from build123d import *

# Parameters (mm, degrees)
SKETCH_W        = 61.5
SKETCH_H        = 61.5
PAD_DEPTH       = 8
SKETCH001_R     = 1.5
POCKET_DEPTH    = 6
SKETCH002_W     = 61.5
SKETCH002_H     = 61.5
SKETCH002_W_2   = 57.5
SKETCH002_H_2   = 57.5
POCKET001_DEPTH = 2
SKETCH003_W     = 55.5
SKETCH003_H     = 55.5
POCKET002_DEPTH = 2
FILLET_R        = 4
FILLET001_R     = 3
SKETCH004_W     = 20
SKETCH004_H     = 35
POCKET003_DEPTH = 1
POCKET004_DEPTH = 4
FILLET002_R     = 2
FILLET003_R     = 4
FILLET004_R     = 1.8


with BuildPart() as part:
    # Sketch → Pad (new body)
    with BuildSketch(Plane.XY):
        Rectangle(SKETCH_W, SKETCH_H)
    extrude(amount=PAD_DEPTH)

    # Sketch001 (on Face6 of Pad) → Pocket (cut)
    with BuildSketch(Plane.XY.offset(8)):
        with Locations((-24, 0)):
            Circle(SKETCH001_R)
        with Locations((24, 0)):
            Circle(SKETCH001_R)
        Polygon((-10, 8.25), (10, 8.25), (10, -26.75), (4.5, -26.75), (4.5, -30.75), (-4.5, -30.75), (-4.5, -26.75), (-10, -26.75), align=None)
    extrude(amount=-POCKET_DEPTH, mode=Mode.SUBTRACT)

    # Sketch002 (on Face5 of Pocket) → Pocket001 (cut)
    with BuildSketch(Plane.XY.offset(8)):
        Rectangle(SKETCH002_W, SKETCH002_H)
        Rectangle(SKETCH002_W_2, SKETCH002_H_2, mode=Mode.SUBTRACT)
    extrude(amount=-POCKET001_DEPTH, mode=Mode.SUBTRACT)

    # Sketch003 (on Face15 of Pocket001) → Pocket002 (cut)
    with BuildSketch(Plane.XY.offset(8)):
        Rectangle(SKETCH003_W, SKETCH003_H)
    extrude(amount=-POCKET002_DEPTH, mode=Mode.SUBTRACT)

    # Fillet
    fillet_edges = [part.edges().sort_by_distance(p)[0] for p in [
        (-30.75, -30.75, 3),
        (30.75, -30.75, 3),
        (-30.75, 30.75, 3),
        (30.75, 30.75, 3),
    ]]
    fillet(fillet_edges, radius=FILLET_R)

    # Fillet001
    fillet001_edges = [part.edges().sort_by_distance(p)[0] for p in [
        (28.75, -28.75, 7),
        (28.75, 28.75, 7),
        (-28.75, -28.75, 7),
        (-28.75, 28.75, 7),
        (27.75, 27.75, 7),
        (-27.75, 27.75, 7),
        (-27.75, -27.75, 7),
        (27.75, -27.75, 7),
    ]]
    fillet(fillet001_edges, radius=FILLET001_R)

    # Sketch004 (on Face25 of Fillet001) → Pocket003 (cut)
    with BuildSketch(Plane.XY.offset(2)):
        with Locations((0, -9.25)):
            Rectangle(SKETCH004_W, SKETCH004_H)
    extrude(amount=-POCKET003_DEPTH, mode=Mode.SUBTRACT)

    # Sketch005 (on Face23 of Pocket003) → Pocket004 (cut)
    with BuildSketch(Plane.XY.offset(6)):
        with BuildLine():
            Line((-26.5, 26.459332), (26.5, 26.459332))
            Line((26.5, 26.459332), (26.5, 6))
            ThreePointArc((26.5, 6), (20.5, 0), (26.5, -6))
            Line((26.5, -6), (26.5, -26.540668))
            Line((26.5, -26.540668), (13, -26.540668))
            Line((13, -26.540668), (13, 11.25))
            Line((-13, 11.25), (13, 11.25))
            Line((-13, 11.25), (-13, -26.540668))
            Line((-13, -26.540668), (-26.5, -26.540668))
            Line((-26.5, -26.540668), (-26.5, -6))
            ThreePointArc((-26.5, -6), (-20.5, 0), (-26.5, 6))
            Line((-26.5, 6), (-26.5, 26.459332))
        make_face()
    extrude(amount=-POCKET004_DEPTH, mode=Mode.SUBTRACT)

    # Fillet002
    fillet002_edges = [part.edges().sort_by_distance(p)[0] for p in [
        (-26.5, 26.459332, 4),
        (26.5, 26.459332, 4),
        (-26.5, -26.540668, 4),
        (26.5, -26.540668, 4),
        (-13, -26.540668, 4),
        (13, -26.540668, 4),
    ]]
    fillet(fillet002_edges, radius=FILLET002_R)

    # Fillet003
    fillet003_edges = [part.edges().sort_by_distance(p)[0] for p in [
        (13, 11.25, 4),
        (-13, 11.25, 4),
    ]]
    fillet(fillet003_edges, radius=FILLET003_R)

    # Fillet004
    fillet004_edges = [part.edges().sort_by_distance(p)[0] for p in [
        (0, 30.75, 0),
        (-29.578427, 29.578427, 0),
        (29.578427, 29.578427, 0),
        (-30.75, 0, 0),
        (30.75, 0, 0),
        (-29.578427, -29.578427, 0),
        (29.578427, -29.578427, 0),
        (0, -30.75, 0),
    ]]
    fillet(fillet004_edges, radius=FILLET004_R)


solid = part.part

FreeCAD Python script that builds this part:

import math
import FreeCAD as App
import Part
import Sketcher
from FreeCAD import Vector
Q = App.Units.Quantity


def edges_at(feature, points):
    """Names of the edges that pass closest to the given points."""
    edges = feature.Shape.Edges
    near = lambda p: min(range(len(edges)), key=lambda i: edges[i].distToShape(Part.Vertex(*p))[0])
    return sorted({f"Edge{near(p) + 1}" for p in points})


def add_polygon(sketch, points):
    """Adds a closed chain of lines whose ends are joined by coincident constraints."""
    first, n = sketch.GeometryCount, len(points)
    for a, b in zip(points, points[1:] + points[:1]):
        sketch.addGeometry(Part.LineSegment(App.Vector(*a, 0), App.Vector(*b, 0)), False)
    for i in range(n):
        sketch.addConstraint(Sketcher.Constraint("Coincident", first + i, 2, first + (i + 1) % n, 1))

doc = App.newDocument("Part")
body = doc.addObject("PartDesign::Body", "Body")

sketch1 = doc.addObject("Sketcher::SketchObject", "Sketch")
body.addObject(sketch1)
sketch1.AttachmentSupport = (doc.XY_Plane, [""])
sketch1.MapMode = "FlatFace"
add_polygon(sketch1, [(-31, 31), (-31, -31), (31, -31), (31, 31)])
sketch1.addConstraint([
    Sketcher.Constraint("Vertical", 0),
    Sketcher.Constraint("Horizontal", 1),
    Sketcher.Constraint("Vertical", 2),
    Sketcher.Constraint("Horizontal", 3),
    Sketcher.Constraint("Symmetric", 0, 2, 2, 2, -1, 1),
    Sketcher.Constraint("Equal", 3, 0),
    Sketcher.Constraint("DistanceX", 1, 1, 1, 2, Q("61.5 mm")),
])
pad1 = doc.addObject("PartDesign::Pad", "Pad")
body.addObject(pad1)
pad1.Profile = sketch1
pad1.Length = 8

sketch2 = doc.addObject("Sketcher::SketchObject", "Sketch001")
body.addObject(sketch2)
sketch2.AttachmentSupport = (doc.XY_Plane, [""])
sketch2.MapMode = "FlatFace"
sketch2.AttachmentOffset = App.Placement(Vector(0, 0, 8), App.Rotation())
sketch2.addGeometry(Part.Circle(Vector(-24, 0, 0), Vector(0, 0, 1), 1.5), False)
sketch2.addGeometry(Part.Circle(Vector(24, 0, 0), Vector(0, 0, 1), 1.5), False)
add_polygon(sketch2, [(10, 8.2), (-10, 8.2), (-10, -26.8), (-4.5, -26.8), (-4.5, -30.8), (4.5, -30.8), (4.5, -26.8), (10, -26.8)])
sketch2.addConstraint([
    Sketcher.Constraint("Horizontal", 2),
    Sketcher.Constraint("Vertical", 3),
    Sketcher.Constraint("Horizontal", 4),
    Sketcher.Constraint("Vertical", 5),
    Sketcher.Constraint("Horizontal", 6),
    Sketcher.Constraint("Vertical", 7),
    Sketcher.Constraint("Horizontal", 8),
    Sketcher.Constraint("Vertical", 9),
    Sketcher.Constraint("Equal", 0, 1),
    Sketcher.Constraint("Symmetric", 0, 3, 1, 3, -1, 1),
    Sketcher.Constraint("Symmetric", 4, 2, 7, 2, -2),
    Sketcher.Constraint("PointOnObject", 0, 3, -1),
    Sketcher.Constraint("Equal", 4, 8),
    Sketcher.Constraint("Diameter", 0, Q("3 mm")),
    Sketcher.Constraint("DistanceX", 2, 2, 2, 1, Q("20 mm")),
    Sketcher.Constraint("DistanceX", 6, 1, 6, 2, Q("9 mm")),
    Sketcher.Constraint("DistanceY", 3, 2, 3, 1, Q("35 mm")),
    Sketcher.Constraint("DistanceY", 5, 2, 5, 1, Q("4 mm")),
    Sketcher.Constraint("DistanceX", 0, 3, -1, 1, Q("24 mm")),
    Sketcher.Constraint("DistanceY", -1, 1, 2, 2, Q("8.25 mm")),
])
pocket1 = doc.addObject("PartDesign::Pocket", "Pocket")
body.addObject(pocket1)
pocket1.Profile = sketch2
pocket1.Length = 6

sketch3 = doc.addObject("Sketcher::SketchObject", "Sketch002")
body.addObject(sketch3)
sketch3.AttachmentSupport = (doc.XY_Plane, [""])
sketch3.MapMode = "FlatFace"
sketch3.AttachmentOffset = App.Placement(Vector(0, 0, 8), App.Rotation())
add_polygon(sketch3, [(-31, 31), (-31, -31), (31, -31), (31, 31)])
add_polygon(sketch3, [(29, -29), (-29, -29), (-29, 29), (29, 29)])
sketch3.addConstraint([
    Sketcher.Constraint("Vertical", 0),
    Sketcher.Constraint("Horizontal", 1),
    Sketcher.Constraint("Vertical", 2),
    Sketcher.Constraint("Horizontal", 3),
    Sketcher.Constraint("Horizontal", 4),
    Sketcher.Constraint("Vertical", 5),
    Sketcher.Constraint("Horizontal", 6),
    Sketcher.Constraint("Vertical", 7),
    Sketcher.Constraint("Symmetric", 0, 2, 2, 2, -1, 1),
    Sketcher.Constraint("Symmetric", 4, 2, 6, 2, -1, 1),
    Sketcher.Constraint("Equal", 3, 0),
    Sketcher.Constraint("Equal", 6, 5),
    Sketcher.Constraint("DistanceX", 1, 1, 1, 2, Q("61.5 mm")),
    Sketcher.Constraint("DistanceX", 4, 2, 4, 1, Q("57.5 mm")),
])
pocket2 = doc.addObject("PartDesign::Pocket", "Pocket001")
body.addObject(pocket2)
pocket2.Profile = sketch3
pocket2.Length = 2

sketch4 = doc.addObject("Sketcher::SketchObject", "Sketch003")
body.addObject(sketch4)
sketch4.AttachmentSupport = (doc.XY_Plane, [""])
sketch4.MapMode = "FlatFace"
sketch4.AttachmentOffset = App.Placement(Vector(0, 0, 8), App.Rotation())
add_polygon(sketch4, [(-28, 28), (-28, -28), (28, -28), (28, 28)])
sketch4.addConstraint([
    Sketcher.Constraint("Vertical", 0),
    Sketcher.Constraint("Horizontal", 1),
    Sketcher.Constraint("Vertical", 2),
    Sketcher.Constraint("Horizontal", 3),
    Sketcher.Constraint("Symmetric", 0, 2, 2, 2, -1, 1),
    Sketcher.Constraint("Equal", 3, 0),
    Sketcher.Constraint("DistanceX", 1, 1, 1, 2, Q("55.5 mm")),
])
pocket3 = doc.addObject("PartDesign::Pocket", "Pocket002")
body.addObject(pocket3)
pocket3.Profile = sketch4
pocket3.Length = 2
doc.recompute()

fillet = doc.addObject("PartDesign::Fillet", "Fillet")
body.addObject(fillet)
fillet.Base = (pocket3, edges_at(pocket3, [
    (-30.75, -30.75, 3),
    (30.75, -30.75, 3),
    (-30.75, 30.75, 3),
    (30.75, 30.75, 3),
]))
fillet.Radius = 4
doc.recompute()

fillet2 = doc.addObject("PartDesign::Fillet", "Fillet001")
body.addObject(fillet2)
fillet2.Base = (fillet, edges_at(fillet, [
    (28.75, -28.75, 7),
    (28.75, 28.75, 7),
    (-28.75, -28.75, 7),
    (-28.75, 28.75, 7),
    (27.75, 27.75, 7),
    (-27.75, 27.75, 7),
    (-27.75, -27.75, 7),
    (27.75, -27.75, 7),
]))
fillet2.Radius = 3

sketch5 = doc.addObject("Sketcher::SketchObject", "Sketch004")
body.addObject(sketch5)
sketch5.AttachmentSupport = (doc.XY_Plane, [""])
sketch5.MapMode = "FlatFace"
sketch5.AttachmentOffset = App.Placement(Vector(0, 0, 2), App.Rotation())
add_polygon(sketch5, [(-10, 8), (-10, -27), (10, -27), (10, 8)])
sketch5.addConstraint([
    Sketcher.Constraint("Vertical", 0),
    Sketcher.Constraint("Horizontal", 1),
    Sketcher.Constraint("Vertical", 2),
    Sketcher.Constraint("Horizontal", 3),
    Sketcher.Constraint("DistanceX", 1, 1, 1, 2, Q("20 mm")),
    Sketcher.Constraint("DistanceY", 0, 2, 0, 1, Q("35 mm")),
    Sketcher.Constraint("DistanceX", 0, 2, -1, 1, Q("10 mm")),
    Sketcher.Constraint("DistanceY", 0, 2, -1, 1, Q("26.75 mm")),
])
pocket4 = doc.addObject("PartDesign::Pocket", "Pocket003")
body.addObject(pocket4)
pocket4.Profile = sketch5
pocket4.Length = 1

sketch6 = doc.addObject("Sketcher::SketchObject", "Sketch005")
body.addObject(sketch6)
sketch6.AttachmentSupport = (doc.XY_Plane, [""])
sketch6.MapMode = "FlatFace"
sketch6.AttachmentOffset = App.Placement(Vector(0, 0, 6), App.Rotation())
sketch6.addGeometry([
    Part.LineSegment(Vector(26, 26, 0), Vector(-26, 26, 0)),
    Part.LineSegment(Vector(-26, 26, 0), Vector(-26, 6, 0)),
    Part.ArcOfCircle(Part.Circle(Vector(-26, 0, 0), Vector(0, 0, 1), 6), math.radians(-90), math.radians(90)),
    Part.LineSegment(Vector(-26, -6, 0), Vector(-26, -27, 0)),
    Part.LineSegment(Vector(-26, -27, 0), Vector(-13, -27, 0)),
    Part.LineSegment(Vector(-13, -27, 0), Vector(-13, 11, 0)),
    Part.LineSegment(Vector(-13, 11, 0), Vector(13, 11, 0)),
    Part.LineSegment(Vector(13, 11, 0), Vector(13, -27, 0)),
    Part.LineSegment(Vector(13, -27, 0), Vector(26, -27, 0)),
    Part.LineSegment(Vector(26, -27, 0), Vector(26, -6, 0)),
    Part.ArcOfCircle(Part.Circle(Vector(26, 0, 0), Vector(0, 0, 1), 6), math.radians(90), math.radians(270)),
    Part.LineSegment(Vector(26, 6, 0), Vector(26, 26, 0)),
], False)
sketch6.addConstraint([
    Sketcher.Constraint("Coincident", 0, 2, 1, 1),
    Sketcher.Constraint("Coincident", 1, 2, 2, 2),
    Sketcher.Constraint("Coincident", 2, 1, 3, 1),
    Sketcher.Constraint("Coincident", 3, 2, 4, 1),
    Sketcher.Constraint("Coincident", 4, 2, 5, 1),
    Sketcher.Constraint("Coincident", 5, 2, 6, 1),
    Sketcher.Constraint("Coincident", 6, 2, 7, 1),
    Sketcher.Constraint("Coincident", 7, 2, 8, 1),
    Sketcher.Constraint("Coincident", 8, 2, 9, 1),
    Sketcher.Constraint("Coincident", 9, 2, 10, 2),
    Sketcher.Constraint("Coincident", 10, 1, 11, 1),
    Sketcher.Constraint("Coincident", 11, 2, 0, 1),
    Sketcher.Constraint("Horizontal", 0),
    Sketcher.Constraint("Vertical", 1),
    Sketcher.Constraint("Vertical", 3),
    Sketcher.Constraint("Horizontal", 4),
    Sketcher.Constraint("Vertical", 5),
    Sketcher.Constraint("Horizontal", 6),
    Sketcher.Constraint("Vertical", 7),
    Sketcher.Constraint("Horizontal", 8),
    Sketcher.Constraint("Vertical", 9),
    Sketcher.Constraint("Vertical", 11),
    Sketcher.Constraint("Equal", 2, 10),
    Sketcher.Constraint("Symmetric", 2, 3, 10, 3, -1, 1),
    Sketcher.Constraint("Symmetric", 4, 2, 7, 2, -2),
    Sketcher.Constraint("Symmetric", 2, 1, 9, 2, -2),
    Sketcher.Constraint("Vertical", 2, 3, 0, 2),
    Sketcher.Constraint("Vertical", 1, 2, 2, 1),
    Sketcher.Constraint("Vertical", 9, 2, 10, 1),
    Sketcher.Constraint("Radius", 2, Q("6 mm")),
    Sketcher.Constraint("DistanceX", 0, 2, 0, 1, Q("53 mm")),
    Sketcher.Constraint("DistanceX", 6, 1, 6, 2, Q("26 mm")),
    Sketcher.Constraint("DistanceY", 3, 2, 0, 2, Q("53 mm")),
    Sketcher.Constraint("DistanceY", -1, 1, 5, 2, Q("11.25 mm")),
    Sketcher.Constraint("DistanceY", 1, 2, 1, 1, Q("20.459332 mm")),
])
pocket5 = doc.addObject("PartDesign::Pocket", "Pocket004")
body.addObject(pocket5)
pocket5.Profile = sketch6
pocket5.Length = 4
doc.recompute()

fillet3 = doc.addObject("PartDesign::Fillet", "Fillet002")
body.addObject(fillet3)
fillet3.Base = (pocket5, edges_at(pocket5, [
    (-26.5, 26.459, 4),
    (26.5, 26.459, 4),
    (-26.5, -26.541, 4),
    (26.5, -26.541, 4),
    (-13, -26.541, 4),
    (13, -26.541, 4),
]))
fillet3.Radius = 2
doc.recompute()

fillet4 = doc.addObject("PartDesign::Fillet", "Fillet003")
body.addObject(fillet4)
fillet4.Base = (fillet3, edges_at(fillet3, [(13, 11.25, 4), (-13, 11.25, 4)]))
fillet4.Radius = 4
doc.recompute()

fillet5 = doc.addObject("PartDesign::Fillet", "Fillet004")
body.addObject(fillet5)
fillet5.Base = (fillet4, edges_at(fillet4, [
    (0, 30.75, 0),
    (-29.578, 29.578, 0),
    (29.578, 29.578, 0),
    (-30.75, 0, 0),
    (30.75, 0, 0),
    (-29.578, -29.578, 0),
    (29.578, -29.578, 0),
    (0, -30.75, 0),
]))
fillet5.Radius = 1.8

doc.recompute()
